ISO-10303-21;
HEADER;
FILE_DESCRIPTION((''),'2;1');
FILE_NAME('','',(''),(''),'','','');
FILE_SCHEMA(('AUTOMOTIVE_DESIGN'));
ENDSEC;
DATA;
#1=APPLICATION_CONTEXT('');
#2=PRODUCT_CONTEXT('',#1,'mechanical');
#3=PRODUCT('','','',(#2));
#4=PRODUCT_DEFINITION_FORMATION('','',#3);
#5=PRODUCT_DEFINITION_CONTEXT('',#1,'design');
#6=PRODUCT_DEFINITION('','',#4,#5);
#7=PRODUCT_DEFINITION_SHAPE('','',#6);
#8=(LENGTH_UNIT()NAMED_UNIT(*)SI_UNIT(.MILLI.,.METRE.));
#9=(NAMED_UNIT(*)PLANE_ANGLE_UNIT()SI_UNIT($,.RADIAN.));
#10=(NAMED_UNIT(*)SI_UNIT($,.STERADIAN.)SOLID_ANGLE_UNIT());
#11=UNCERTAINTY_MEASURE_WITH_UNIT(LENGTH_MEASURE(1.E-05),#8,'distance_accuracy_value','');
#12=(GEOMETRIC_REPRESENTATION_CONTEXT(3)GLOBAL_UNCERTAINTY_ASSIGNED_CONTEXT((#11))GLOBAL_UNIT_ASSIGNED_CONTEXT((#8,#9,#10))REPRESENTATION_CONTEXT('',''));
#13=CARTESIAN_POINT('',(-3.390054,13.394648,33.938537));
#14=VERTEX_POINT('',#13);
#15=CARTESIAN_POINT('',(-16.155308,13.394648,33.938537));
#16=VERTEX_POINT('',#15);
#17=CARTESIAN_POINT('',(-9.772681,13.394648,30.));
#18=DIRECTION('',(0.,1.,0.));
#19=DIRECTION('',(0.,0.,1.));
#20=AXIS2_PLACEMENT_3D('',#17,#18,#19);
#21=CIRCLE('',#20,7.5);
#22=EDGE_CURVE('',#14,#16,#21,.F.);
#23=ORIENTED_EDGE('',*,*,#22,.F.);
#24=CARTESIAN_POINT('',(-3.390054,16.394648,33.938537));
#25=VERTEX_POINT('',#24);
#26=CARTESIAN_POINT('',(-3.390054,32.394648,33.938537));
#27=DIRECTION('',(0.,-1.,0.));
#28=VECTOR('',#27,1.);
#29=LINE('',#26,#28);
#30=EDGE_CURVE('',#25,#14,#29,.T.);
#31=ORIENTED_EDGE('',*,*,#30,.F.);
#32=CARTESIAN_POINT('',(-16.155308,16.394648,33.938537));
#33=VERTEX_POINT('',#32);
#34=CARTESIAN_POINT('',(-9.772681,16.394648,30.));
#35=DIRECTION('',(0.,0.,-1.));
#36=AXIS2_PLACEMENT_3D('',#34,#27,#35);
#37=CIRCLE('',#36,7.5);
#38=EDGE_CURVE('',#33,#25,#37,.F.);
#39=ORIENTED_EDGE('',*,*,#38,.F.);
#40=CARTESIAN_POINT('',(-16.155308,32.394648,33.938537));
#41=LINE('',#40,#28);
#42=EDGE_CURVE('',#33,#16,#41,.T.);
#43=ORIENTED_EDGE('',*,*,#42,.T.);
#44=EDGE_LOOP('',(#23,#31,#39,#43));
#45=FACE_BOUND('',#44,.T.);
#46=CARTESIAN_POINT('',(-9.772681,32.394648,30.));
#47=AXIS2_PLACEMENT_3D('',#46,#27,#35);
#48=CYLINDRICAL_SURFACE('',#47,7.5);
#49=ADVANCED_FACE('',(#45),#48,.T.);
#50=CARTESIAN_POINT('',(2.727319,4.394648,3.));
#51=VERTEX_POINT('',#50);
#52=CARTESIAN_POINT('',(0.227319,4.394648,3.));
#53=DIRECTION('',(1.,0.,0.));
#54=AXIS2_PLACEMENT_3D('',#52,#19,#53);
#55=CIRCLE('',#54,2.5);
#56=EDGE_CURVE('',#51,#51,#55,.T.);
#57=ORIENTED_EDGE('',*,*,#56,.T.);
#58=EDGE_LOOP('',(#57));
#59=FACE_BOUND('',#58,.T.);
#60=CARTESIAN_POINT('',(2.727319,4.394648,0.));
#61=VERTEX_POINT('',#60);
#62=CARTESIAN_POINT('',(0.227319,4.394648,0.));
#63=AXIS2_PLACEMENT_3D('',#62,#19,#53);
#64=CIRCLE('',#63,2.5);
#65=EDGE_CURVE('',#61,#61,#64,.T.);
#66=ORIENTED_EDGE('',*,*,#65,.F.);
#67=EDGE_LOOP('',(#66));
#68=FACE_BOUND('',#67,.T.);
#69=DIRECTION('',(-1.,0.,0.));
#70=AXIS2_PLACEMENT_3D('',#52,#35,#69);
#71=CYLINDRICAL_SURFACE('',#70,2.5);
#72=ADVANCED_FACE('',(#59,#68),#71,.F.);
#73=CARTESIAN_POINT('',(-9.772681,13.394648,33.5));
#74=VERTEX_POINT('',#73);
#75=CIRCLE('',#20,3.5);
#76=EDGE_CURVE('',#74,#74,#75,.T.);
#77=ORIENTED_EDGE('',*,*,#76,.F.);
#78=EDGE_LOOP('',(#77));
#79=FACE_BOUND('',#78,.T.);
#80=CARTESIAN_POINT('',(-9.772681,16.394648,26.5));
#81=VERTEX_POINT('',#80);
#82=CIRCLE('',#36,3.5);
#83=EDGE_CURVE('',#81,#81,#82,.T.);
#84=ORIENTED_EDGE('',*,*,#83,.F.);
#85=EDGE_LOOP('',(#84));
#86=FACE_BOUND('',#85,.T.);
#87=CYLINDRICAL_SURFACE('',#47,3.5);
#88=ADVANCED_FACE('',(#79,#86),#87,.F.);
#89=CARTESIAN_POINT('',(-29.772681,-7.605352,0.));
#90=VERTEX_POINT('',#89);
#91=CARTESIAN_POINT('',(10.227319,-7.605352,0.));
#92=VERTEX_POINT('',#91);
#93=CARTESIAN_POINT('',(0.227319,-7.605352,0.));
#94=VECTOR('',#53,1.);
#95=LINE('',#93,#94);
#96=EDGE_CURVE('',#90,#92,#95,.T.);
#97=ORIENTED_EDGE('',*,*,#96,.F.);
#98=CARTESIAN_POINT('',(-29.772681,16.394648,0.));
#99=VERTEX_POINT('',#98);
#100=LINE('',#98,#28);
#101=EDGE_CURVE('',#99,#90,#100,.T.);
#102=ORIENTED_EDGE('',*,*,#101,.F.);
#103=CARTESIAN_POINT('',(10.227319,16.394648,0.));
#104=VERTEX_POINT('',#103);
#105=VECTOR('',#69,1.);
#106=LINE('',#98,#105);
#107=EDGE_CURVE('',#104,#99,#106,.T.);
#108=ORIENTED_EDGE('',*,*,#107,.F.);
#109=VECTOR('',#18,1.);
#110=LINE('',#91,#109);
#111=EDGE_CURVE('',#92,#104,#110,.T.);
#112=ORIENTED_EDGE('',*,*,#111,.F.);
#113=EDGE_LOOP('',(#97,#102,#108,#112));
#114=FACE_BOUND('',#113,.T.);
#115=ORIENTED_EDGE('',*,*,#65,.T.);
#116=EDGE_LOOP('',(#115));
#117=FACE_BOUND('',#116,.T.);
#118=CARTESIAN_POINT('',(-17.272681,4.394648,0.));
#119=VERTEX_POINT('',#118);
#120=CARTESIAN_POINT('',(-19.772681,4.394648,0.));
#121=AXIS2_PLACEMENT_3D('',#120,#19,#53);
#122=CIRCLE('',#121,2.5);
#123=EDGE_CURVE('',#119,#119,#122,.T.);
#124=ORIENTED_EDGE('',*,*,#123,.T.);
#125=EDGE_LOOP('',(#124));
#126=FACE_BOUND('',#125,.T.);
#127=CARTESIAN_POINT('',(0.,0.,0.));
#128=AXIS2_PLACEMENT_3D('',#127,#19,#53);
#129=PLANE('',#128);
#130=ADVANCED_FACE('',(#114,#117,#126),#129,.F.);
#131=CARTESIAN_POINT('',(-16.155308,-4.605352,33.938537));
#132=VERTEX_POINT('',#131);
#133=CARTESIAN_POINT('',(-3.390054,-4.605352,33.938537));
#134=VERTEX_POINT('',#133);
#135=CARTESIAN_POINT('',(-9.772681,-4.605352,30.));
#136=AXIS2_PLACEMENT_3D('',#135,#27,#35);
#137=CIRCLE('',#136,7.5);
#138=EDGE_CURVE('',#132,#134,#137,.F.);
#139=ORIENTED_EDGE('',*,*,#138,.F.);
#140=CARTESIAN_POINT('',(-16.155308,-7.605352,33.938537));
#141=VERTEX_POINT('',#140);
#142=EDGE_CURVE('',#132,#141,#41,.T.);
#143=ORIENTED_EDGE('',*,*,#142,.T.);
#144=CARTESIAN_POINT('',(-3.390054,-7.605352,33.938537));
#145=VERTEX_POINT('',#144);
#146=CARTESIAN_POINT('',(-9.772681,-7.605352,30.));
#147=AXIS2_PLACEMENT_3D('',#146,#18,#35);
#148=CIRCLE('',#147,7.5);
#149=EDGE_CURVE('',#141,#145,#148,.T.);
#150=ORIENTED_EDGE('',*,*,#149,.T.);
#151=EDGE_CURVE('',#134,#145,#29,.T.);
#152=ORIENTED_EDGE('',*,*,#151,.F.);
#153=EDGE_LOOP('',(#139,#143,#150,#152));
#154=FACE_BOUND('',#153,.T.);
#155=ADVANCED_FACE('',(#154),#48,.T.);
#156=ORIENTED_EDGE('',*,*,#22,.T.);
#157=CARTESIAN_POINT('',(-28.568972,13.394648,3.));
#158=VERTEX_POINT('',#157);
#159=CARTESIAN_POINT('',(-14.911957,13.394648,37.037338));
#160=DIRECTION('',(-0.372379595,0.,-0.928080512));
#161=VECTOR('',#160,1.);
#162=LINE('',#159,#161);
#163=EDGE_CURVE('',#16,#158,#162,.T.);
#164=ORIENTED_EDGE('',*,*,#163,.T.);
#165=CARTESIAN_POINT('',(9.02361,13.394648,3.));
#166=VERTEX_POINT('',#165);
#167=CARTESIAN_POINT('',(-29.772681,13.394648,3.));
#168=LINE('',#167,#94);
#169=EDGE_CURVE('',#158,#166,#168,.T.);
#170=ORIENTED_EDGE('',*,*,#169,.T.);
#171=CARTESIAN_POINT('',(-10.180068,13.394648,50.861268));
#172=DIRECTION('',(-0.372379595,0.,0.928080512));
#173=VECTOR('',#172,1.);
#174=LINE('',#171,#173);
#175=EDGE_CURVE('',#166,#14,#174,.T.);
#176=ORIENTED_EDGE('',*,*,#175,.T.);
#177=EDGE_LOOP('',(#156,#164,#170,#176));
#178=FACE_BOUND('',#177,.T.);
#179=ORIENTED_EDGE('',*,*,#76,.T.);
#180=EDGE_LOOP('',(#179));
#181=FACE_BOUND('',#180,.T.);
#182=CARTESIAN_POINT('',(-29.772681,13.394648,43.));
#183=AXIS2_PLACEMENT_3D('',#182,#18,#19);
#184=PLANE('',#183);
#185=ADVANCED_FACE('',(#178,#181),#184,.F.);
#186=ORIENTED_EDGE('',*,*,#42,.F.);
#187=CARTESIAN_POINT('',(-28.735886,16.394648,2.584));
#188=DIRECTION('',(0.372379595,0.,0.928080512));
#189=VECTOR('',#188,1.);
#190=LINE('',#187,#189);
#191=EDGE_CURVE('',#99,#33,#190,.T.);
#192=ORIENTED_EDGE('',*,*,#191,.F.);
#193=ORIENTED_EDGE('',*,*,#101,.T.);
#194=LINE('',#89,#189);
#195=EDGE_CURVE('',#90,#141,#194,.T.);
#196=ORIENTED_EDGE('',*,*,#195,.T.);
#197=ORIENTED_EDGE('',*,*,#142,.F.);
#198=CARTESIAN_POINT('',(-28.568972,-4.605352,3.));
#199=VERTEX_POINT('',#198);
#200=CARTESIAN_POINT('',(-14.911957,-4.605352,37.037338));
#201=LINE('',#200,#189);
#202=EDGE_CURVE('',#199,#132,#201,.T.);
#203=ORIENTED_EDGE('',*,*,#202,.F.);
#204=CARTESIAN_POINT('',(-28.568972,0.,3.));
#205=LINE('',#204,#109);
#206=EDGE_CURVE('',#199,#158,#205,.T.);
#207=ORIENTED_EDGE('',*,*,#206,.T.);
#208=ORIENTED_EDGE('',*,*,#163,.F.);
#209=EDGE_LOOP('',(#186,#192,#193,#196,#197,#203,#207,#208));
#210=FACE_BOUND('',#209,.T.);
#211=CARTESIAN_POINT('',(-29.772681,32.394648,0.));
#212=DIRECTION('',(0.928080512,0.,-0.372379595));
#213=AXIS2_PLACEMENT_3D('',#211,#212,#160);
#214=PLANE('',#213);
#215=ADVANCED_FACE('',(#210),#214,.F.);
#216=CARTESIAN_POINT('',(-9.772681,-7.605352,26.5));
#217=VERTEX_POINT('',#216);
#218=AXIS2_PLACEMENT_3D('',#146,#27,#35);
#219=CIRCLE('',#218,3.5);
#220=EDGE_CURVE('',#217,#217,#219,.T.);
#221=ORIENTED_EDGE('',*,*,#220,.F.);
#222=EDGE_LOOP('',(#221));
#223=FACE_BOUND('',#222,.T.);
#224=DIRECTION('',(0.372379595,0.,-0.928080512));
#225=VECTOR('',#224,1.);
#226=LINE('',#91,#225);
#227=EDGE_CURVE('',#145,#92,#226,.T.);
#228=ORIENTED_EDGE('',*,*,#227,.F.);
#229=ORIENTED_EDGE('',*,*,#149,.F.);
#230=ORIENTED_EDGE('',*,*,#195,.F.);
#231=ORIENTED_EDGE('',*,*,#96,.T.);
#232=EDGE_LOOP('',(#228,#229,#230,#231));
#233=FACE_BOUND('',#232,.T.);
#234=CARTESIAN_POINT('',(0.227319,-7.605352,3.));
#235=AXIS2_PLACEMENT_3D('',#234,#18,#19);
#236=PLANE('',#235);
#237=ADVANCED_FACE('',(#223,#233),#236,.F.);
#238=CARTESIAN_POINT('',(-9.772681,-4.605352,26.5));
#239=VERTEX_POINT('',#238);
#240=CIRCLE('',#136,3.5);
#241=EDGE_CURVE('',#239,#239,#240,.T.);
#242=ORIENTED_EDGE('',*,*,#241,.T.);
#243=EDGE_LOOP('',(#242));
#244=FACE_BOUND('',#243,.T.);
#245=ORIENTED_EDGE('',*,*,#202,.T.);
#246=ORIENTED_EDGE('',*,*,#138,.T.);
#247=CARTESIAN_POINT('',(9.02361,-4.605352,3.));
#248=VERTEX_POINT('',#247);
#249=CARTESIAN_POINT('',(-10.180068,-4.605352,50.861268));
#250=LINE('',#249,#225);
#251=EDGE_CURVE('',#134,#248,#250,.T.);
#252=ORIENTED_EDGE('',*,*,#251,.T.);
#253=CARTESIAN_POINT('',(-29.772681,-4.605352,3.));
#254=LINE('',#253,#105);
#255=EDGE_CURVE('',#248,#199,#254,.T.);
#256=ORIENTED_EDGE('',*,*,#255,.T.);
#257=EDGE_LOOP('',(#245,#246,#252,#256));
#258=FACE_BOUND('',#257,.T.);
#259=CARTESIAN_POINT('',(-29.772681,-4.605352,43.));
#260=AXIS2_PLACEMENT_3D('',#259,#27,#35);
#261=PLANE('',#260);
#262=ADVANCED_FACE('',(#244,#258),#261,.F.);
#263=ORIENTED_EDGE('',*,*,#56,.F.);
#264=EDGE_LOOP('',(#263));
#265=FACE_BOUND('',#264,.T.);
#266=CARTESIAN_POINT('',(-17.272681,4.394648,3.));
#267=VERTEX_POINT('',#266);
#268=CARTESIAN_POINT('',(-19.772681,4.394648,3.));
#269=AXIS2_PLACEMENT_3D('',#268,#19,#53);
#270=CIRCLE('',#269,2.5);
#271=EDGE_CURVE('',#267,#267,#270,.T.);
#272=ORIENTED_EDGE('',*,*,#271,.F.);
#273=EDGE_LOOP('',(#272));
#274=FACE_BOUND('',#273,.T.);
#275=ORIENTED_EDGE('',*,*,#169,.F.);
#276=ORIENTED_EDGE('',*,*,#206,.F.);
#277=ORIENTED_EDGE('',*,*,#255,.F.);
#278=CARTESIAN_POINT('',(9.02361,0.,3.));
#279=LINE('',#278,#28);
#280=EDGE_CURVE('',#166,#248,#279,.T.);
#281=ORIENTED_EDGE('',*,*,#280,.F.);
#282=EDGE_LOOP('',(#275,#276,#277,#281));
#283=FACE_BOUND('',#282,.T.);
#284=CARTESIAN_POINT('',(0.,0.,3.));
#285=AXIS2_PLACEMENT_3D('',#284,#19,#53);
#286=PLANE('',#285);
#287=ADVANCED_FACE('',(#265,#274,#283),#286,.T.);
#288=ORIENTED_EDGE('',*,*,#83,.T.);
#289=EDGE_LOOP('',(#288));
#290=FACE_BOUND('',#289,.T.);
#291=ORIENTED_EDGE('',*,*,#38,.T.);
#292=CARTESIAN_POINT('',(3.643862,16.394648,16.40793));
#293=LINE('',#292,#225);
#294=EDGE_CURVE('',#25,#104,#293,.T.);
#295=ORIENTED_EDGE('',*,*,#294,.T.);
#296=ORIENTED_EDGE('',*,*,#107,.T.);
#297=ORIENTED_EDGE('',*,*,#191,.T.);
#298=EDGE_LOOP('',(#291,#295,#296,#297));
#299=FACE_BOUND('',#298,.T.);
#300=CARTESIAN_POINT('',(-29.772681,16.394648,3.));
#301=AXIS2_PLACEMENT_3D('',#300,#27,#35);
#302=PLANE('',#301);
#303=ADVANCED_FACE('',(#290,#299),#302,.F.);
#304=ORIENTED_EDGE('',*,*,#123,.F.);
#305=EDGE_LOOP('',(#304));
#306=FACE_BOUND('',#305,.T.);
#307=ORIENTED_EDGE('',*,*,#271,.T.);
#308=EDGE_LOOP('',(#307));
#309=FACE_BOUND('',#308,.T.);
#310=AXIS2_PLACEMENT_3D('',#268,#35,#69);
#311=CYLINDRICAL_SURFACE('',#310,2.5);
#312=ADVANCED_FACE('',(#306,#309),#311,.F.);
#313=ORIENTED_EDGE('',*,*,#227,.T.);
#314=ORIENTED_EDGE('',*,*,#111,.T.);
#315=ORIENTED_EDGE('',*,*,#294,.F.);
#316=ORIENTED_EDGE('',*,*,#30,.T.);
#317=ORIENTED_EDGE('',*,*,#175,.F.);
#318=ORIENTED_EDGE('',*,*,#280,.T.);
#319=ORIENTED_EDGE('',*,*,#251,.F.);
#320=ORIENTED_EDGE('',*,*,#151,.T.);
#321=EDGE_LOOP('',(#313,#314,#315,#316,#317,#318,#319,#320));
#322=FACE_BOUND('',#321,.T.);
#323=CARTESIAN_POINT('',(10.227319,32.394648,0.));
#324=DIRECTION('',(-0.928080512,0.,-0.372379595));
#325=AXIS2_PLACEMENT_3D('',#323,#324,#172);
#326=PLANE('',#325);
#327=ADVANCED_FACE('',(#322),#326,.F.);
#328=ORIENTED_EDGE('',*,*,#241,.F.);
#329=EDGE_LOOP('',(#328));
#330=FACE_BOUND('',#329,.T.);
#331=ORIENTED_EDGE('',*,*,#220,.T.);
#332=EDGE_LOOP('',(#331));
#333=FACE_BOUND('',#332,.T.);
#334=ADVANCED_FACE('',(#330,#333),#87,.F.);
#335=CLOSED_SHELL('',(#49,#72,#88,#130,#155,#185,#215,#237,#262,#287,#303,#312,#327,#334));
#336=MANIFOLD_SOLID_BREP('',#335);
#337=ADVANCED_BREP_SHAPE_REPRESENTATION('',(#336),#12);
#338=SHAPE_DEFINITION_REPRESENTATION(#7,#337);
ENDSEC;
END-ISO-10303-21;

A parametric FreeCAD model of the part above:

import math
import FreeCAD as App
import Part
import Sketcher
Q = App.Units.Quantity

doc = App.newDocument("Part")
body = doc.addObject("PartDesign::Body", "Body")

# Sketch on XY plane
sketch1 = doc.addObject("Sketcher::SketchObject", "Sketch")
body.addObject(sketch1)
sketch1.AttachmentSupport = (doc.XY_Plane, [""])
sketch1.MapMode = "FlatFace"
sketch1.addGeometry([
    Part.LineSegment(App.Vector(-29.8, 16.4, 0), App.Vector(-29.8, -7.6, 0)),  # 0
    Part.LineSegment(App.Vector(-29.8, -7.6, 0), App.Vector(10.2, -7.6, 0)),  # 1
    Part.LineSegment(App.Vector(10.2, -7.6, 0), App.Vector(10.2, 16.4, 0)),  # 2
    Part.LineSegment(App.Vector(10.2, 16.4, 0), App.Vector(-29.8, 16.4, 0)),  # 3
    Part.Circle(App.Vector(-19.8, 4.4, 0), App.Vector(0, 0, 1), 2.5),  # 4
    Part.Circle(App.Vector(0.2, 4.4, 0), App.Vector(0, 0, 1), 2.5),  # 5
], False)
sketch1.addConstraint([
    Sketcher.Constraint("Coincident", 0, 2, 1, 1),
    Sketcher.Constraint("Coincident", 1, 2, 2, 1),
    Sketcher.Constraint("Coincident", 2, 2, 3, 1),
    Sketcher.Constraint("Coincident", 3, 2, 0, 1),
    Sketcher.Constraint("Vertical", 0),
    Sketcher.Constraint("Horizontal", 1),
    Sketcher.Constraint("Vertical", 2),
    Sketcher.Constraint("Horizontal", 3),
    Sketcher.Constraint("Equal", 4, 5),
    Sketcher.Constraint("Horizontal", 4, 3, 5, 3),
    Sketcher.Constraint("Diameter", 4, Q("5 mm")),
    Sketcher.Constraint("DistanceX", 1, 1, 1, 2, Q("40 mm")),
    Sketcher.Constraint("DistanceY", 0, 2, 0, 1, Q("24 mm")),
    Sketcher.Constraint("DistanceX", 4, 3, 5, 3, Q("20 mm")),
    Sketcher.Constraint("DistanceX", 0, 2, 4, 3, Q("10 mm")),
    Sketcher.Constraint("DistanceY", 0, 2, 4, 3, Q("12 mm")),
    Sketcher.Constraint("DistanceX", 4, 3, -1, 1, Q("19.772681 mm")),
    Sketcher.Constraint("DistanceY", -1, 1, 4, 3, Q("4.394648 mm")),
])
pad1 = doc.addObject("PartDesign::Pad", "Pad")
body.addObject(pad1)
pad1.Profile = sketch1
pad1.Length = 3

# Sketch on XY plane
sketch2 = doc.addObject("Sketcher::SketchObject", "Sketch001")
body.addObject(sketch2)
sketch2.AttachmentSupport = (doc.XY_Plane, [""])
sketch2.MapMode = "FlatFace"
sketch2.AttachmentOffset = App.Placement(App.Vector(0, 0, 3), App.Rotation())
sketch2.addGeometry([
    Part.LineSegment(App.Vector(-29.8, -4.6, 0), App.Vector(-29.8, -7.6, 0)),  # 0
    Part.LineSegment(App.Vector(-29.8, -7.6, 0), App.Vector(10.2, -7.6, 0)),  # 1
    Part.LineSegment(App.Vector(10.2, -7.6, 0), App.Vector(10.2, -4.6, 0)),  # 2
    Part.LineSegment(App.Vector(10.2, -4.6, 0), App.Vector(-29.8, -4.6, 0)),  # 3
    Part.LineSegment(App.Vector(-29.8, 16.4, 0), App.Vector(-29.8, 13.4, 0)),  # 4
    Part.LineSegment(App.Vector(-29.8, 13.4, 0), App.Vector(10.2, 13.4, 0)),  # 5
    Part.LineSegment(App.Vector(10.2, 13.4, 0), App.Vector(10.2, 16.4, 0)),  # 6
    Part.LineSegment(App.Vector(10.2, 16.4, 0), App.Vector(-29.8, 16.4, 0)),  # 7
], False)
sketch2.addConstraint([
    Sketcher.Constraint("Coincident", 0, 2, 1, 1),
    Sketcher.Constraint("Coincident", 1, 2, 2, 1),
    Sketcher.Constraint("Coincident", 2, 2, 3, 1),
    Sketcher.Constraint("Coincident", 3, 2, 0, 1),
    Sketcher.Constraint("Coincident", 4, 2, 5, 1),
    Sketcher.Constraint("Coincident", 5, 2, 6, 1),
    Sketcher.Constraint("Coincident", 6, 2, 7, 1),
    Sketcher.Constraint("Coincident", 7, 2, 4, 1),
    Sketcher.Constraint("Vertical", 0),
    Sketcher.Constraint("Horizontal", 1),
    Sketcher.Constraint("Vertical", 2),
    Sketcher.Constraint("Horizontal", 3),
    Sketcher.Constraint("Vertical", 4),
    Sketcher.Constraint("Horizontal", 5),
    Sketcher.Constraint("Vertical", 6),
    Sketcher.Constraint("Horizontal", 7),
    Sketcher.Constraint("Vertical", 3, 2, 4, 2),
    Sketcher.Constraint("Vertical", 2, 2, 5, 2),
    Sketcher.Constraint("Equal", 2, 4),
    Sketcher.Constraint("DistanceX", 1, 1, 1, 2, Q("40 mm")),
    Sketcher.Constraint("DistanceY", 0, 2, 0, 1, Q("3 mm")),
    Sketcher.Constraint("DistanceY", 3, 2, 4, 2, Q("18 mm")),
    Sketcher.Constraint("DistanceX", 0, 2, -1, 1, Q("29.772681 mm")),
    Sketcher.Constraint("DistanceY", 0, 2, -1, 1, Q("7.605352 mm")),
])
pad2 = doc.addObject("PartDesign::Pad", "Pad001")
body.addObject(pad2)
pad2.Profile = sketch2
pad2.Length = 40

# Sketch on XZ plane
sketch3 = doc.addObject("Sketcher::SketchObject", "Sketch002")
body.addObject(sketch3)
sketch3.AttachmentSupport = (doc.XZ_Plane, [""])
sketch3.MapMode = "FlatFace"
sketch3.AttachmentOffset = App.Placement(App.Vector(0, 0, 7.605352), App.Rotation())
sketch3.addGeometry([
    Part.Circle(App.Vector(-9.8, 30, 0), App.Vector(0, 0, 1), 3.5),  # 0
    Part.LineSegment(App.Vector(-66.2, 33.9, 0), App.Vector(-29.8, 0, 0)),  # 1
    Part.LineSegment(App.Vector(-29.8, 0, 0), App.Vector(-16.2, 33.9, 0)),  # 2
    Part.ArcOfCircle(Part.Circle(App.Vector(-9.8, 30, 0), App.Vector(0, 0, 1), 7.5), math.radians(32), math.radians(148)),  # 3
    Part.LineSegment(App.Vector(-3.4, 33.9, 0), App.Vector(10.2, 0, 0)),  # 4
    Part.LineSegment(App.Vector(10.2, 0, 0), App.Vector(36.4, 40.3, 0)),  # 5
    Part.LineSegment(App.Vector(36.4, 40.3, 0), App.Vector(4.7, 61, 0)),  # 6
    Part.LineSegment(App.Vector(4.7, 61, 0), App.Vector(-66.2, 33.9, 0)),  # 7
], False)
sketch3.addConstraint([
    Sketcher.Constraint("Coincident", 1, 2, 2, 1),
    Sketcher.Constraint("Coincident", 2, 2, 3, 2),
    Sketcher.Constraint("Coincident", 3, 1, 4, 1),
    Sketcher.Constraint("Coincident", 4, 2, 5, 1),
    Sketcher.Constraint("Coincident", 5, 2, 6, 1),
    Sketcher.Constraint("Coincident", 6, 2, 7, 1),
    Sketcher.Constraint("Coincident", 7, 2, 1, 1),
    Sketcher.Constraint("Coincident", 3, 3, 0, 3),
    Sketcher.Constraint("PointOnObject", 1, 2, -1),
    Sketcher.Constraint("PointOnObject", 4, 2, -1),
    Sketcher.Constraint("Horizontal", 2, 2, 3, 1),
    Sketcher.Constraint("Horizontal", 3, 1, 7, 2),
    Sketcher.Constraint("Equal", 2, 4),
    Sketcher.Constraint("Diameter", 0, Q("7 mm")),
    Sketcher.Constraint("Radius", 3, Q("7.5 mm")),
    Sketcher.Constraint("DistanceY", -1, 1, 0, 3, Q("30 mm")),
    Sketcher.Constraint("DistanceX", 1, 2, 3, 3, Q("20 mm")),
    Sketcher.Constraint("Distance", 6, Q("37.813281 mm")),
    Sketcher.Constraint("DistanceX", 0, 3, -1, 1, Q("9.772681 mm")),
    Sketcher.Constraint("DistanceY", 3, 1, 5, 2, Q("6.343138 mm")),
    Sketcher.Constraint("DistanceX", 2, 2, 5, 2, Q("52.543231 mm")),
    Sketcher.Constraint("DistanceX", 3, 1, 6, 2, Q("8.140031 mm")),
    Sketcher.Constraint("DistanceX", 7, 2, 3, 1, Q("62.852791 mm")),
    Sketcher.Constraint("Distance", 1, Q("49.818643 mm")),
])
pocket1 = doc.addObject("PartDesign::Pocket", "Pocket")
body.addObject(pocket1)
pocket1.Profile = sketch3
pocket1.Length = 40

doc.recompute()
